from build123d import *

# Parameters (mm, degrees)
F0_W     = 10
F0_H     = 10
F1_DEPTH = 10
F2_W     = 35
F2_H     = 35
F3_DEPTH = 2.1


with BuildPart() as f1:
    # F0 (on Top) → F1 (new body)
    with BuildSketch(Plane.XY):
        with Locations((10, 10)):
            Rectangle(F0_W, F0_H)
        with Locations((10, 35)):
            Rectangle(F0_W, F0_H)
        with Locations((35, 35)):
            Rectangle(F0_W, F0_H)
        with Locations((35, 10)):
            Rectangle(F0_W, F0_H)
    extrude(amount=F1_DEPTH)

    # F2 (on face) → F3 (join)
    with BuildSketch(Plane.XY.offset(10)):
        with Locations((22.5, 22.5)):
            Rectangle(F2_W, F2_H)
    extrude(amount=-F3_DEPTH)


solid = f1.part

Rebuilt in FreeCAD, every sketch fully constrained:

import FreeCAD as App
import Part
import Sketcher

V = App.Vector
Q = App.Units.Quantity

doc = App.newDocument("Part")
body = doc.addObject("PartDesign::Body", "Body")
body.AllowCompound = True

# Sketch on XY plane
sketch1 = body.newObject("Sketcher::SketchObject", "Sketch")
sketch1.AttachmentSupport = (doc.getObject("XY_Plane"), [""])
sketch1.MapMode = "FlatFace"
sketch1.addGeometry([
    Part.LineSegment(V(5, 15, 0), V(5, 5, 0)),  # 0
    Part.LineSegment(V(5, 5, 0), V(15, 5, 0)),  # 1
    Part.LineSegment(V(15, 5, 0), V(15, 15, 0)),  # 2
    Part.LineSegment(V(15, 15, 0), V(5, 15, 0)),  # 3
    Part.LineSegment(V(5, 40, 0), V(5, 30, 0)),  # 4
    Part.LineSegment(V(5, 30, 0), V(15, 30, 0)),  # 5
    Part.LineSegment(V(15, 30, 0), V(15, 40, 0)),  # 6
    Part.LineSegment(V(15, 40, 0), V(5, 40, 0)),  # 7
    Part.LineSegment(V(30, 40, 0), V(30, 30, 0)),  # 8
    Part.LineSegment(V(30, 30, 0), V(40, 30, 0)),  # 9
    Part.LineSegment(V(40, 30, 0), V(40, 40, 0)),  # 10
    Part.LineSegment(V(40, 40, 0), V(30, 40, 0)),  # 11
    Part.LineSegment(V(30, 15, 0), V(30, 5, 0)),  # 12
    Part.LineSegment(V(30, 5, 0), V(40, 5, 0)),  # 13
    Part.LineSegment(V(40, 5, 0), V(40, 15, 0)),  # 14
    Part.LineSegment(V(40, 15, 0), V(30, 15, 0)),  # 15
], False)
sketch1.addConstraint([
    Sketcher.Constraint("Coincident", 0, 2, 1, 1),
    Sketcher.Constraint("Coincident", 1, 2, 2, 1),
    Sketcher.Constraint("Coincident", 2, 2, 3, 1),
    Sketcher.Constraint("Coincident", 3, 2, 0, 1),
    Sketcher.Constraint("Coincident", 4, 2, 5, 1),
    Sketcher.Constraint("Coincident", 5, 2, 6, 1),
    Sketcher.Constraint("Coincident", 6, 2, 7, 1),
    Sketcher.Constraint("Coincident", 7, 2, 4, 1),
    Sketcher.Constraint("Coincident", 8, 2, 9, 1),
    Sketcher.Constraint("Coincident", 9, 2, 10, 1),
    Sketcher.Constraint("Coincident", 10, 2, 11, 1),
    Sketcher.Constraint("Coincident", 11, 2, 8, 1),
    Sketcher.Constraint("Coincident", 12, 2, 13, 1),
    Sketcher.Constraint("Coincident", 13, 2, 14, 1),
    Sketcher.Constraint("Coincident", 14, 2, 15, 1),
    Sketcher.Constraint("Coincident", 15, 2, 12, 1),
    Sketcher.Constraint("Vertical", 0),
    Sketcher.Constraint("Horizontal", 1),
    Sketcher.Constraint("Vertical", 2),
    Sketcher.Constraint("Horizontal", 3),
    Sketcher.Constraint("Vertical", 4),
    Sketcher.Constraint("Horizontal", 5),
    Sketcher.Constraint("Vertical", 6),
    Sketcher.Constraint("Horizontal", 7),
    Sketcher.Constraint("Vertical", 8),
    Sketcher.Constraint("Horizontal", 9),
    Sketcher.Constraint("Vertical", 10),
    Sketcher.Constraint("Horizontal", 11),
    Sketcher.Constraint("Vertical", 12),
    Sketcher.Constraint("Horizontal", 13),
    Sketcher.Constraint("Vertical", 14),
    Sketcher.Constraint("Horizontal", 15),
    Sketcher.Constraint("Horizontal", 5, 2, 8, 2),
    Sketcher.Constraint("Horizontal", 7, 2, 10, 2),
    Sketcher.Constraint("Horizontal", 1, 2, 12, 2),
    Sketcher.Constraint("Horizontal", 3, 2, 14, 2),
    Sketcher.Constraint("Vertical", 3, 2, 4, 2),
    Sketcher.Constraint("Vertical", 2, 2, 5, 2),
    Sketcher.Constraint("Vertical", 11, 2, 12, 2),
    Sketcher.Constraint("Vertical", 10, 2, 13, 2),
    Sketcher.Constraint("Equal", 7, 9),
    Sketcher.Constraint("Equal", 15, 0),
    Sketcher.Constraint("Equal", 2, 4),
    Sketcher.Constraint("DistanceX", 1, 1, 1, 2, Q("10 mm")),
    Sketcher.Constraint("DistanceX", -1, 1, 0, 2, Q("5 mm")),
    Sketcher.Constraint("DistanceY", -1, 1, 0, 2, Q("5 mm")),
    Sketcher.Constraint("DistanceY", -1, 1, 4, 2, Q("30 mm")),
    Sketcher.Constraint("DistanceX", -1, 1, 8, 2, Q("30 mm")),
])
pad1 = body.newObject("PartDesign::Pad", "Pad")
pad1.Profile = sketch1
pad1.Length = 10

# Sketch on XY plane
sketch2 = body.newObject("Sketcher::SketchObject", "Sketch001")
sketch2.AttachmentSupport = (doc.getObject("XY_Plane"), [""])
sketch2.MapMode = "FlatFace"
sketch2.AttachmentOffset = App.Placement(V(0, 0, 10), App.Rotation())
sketch2.addGeometry([
    Part.LineSegment(V(5, 40, 0), V(5, 5, 0)),
    Part.LineSegment(V(5, 5, 0), V(40, 5, 0)),
    Part.LineSegment(V(40, 5, 0), V(40, 40, 0)),
    Part.LineSegment(V(40, 40, 0), V(5, 40, 0)),
], False)
sketch2.addConstraint([
    Sketcher.Constraint("Coincident", 0, 2, 1, 1),
    Sketcher.Constraint("Coincident", 1, 2, 2, 1),
    Sketcher.Constraint("Coincident", 2, 2, 3, 1),
    Sketcher.Constraint("Coincident", 3, 2, 0, 1),
    Sketcher.Constraint("Vertical", 0),
    Sketcher.Constraint("Horizontal", 1),
    Sketcher.Constraint("Vertical", 2),
    Sketcher.Constraint("Horizontal", 3),
    Sketcher.Constraint("Equal", 3, 0),
    Sketcher.Constraint("DistanceX", 1, 1, 1, 2, Q("35 mm")),
    Sketcher.Constraint("DistanceX", -1, 1, 0, 2, Q("5 mm")),
    Sketcher.Constraint("DistanceY", -1, 1, 0, 2, Q("5 mm")),
])
pad2 = body.newObject("PartDesign::Pad", "Pad001")
pad2.Profile = sketch2
pad2.Length = 2.1
pad2.Reversed = True

doc.recompute()
